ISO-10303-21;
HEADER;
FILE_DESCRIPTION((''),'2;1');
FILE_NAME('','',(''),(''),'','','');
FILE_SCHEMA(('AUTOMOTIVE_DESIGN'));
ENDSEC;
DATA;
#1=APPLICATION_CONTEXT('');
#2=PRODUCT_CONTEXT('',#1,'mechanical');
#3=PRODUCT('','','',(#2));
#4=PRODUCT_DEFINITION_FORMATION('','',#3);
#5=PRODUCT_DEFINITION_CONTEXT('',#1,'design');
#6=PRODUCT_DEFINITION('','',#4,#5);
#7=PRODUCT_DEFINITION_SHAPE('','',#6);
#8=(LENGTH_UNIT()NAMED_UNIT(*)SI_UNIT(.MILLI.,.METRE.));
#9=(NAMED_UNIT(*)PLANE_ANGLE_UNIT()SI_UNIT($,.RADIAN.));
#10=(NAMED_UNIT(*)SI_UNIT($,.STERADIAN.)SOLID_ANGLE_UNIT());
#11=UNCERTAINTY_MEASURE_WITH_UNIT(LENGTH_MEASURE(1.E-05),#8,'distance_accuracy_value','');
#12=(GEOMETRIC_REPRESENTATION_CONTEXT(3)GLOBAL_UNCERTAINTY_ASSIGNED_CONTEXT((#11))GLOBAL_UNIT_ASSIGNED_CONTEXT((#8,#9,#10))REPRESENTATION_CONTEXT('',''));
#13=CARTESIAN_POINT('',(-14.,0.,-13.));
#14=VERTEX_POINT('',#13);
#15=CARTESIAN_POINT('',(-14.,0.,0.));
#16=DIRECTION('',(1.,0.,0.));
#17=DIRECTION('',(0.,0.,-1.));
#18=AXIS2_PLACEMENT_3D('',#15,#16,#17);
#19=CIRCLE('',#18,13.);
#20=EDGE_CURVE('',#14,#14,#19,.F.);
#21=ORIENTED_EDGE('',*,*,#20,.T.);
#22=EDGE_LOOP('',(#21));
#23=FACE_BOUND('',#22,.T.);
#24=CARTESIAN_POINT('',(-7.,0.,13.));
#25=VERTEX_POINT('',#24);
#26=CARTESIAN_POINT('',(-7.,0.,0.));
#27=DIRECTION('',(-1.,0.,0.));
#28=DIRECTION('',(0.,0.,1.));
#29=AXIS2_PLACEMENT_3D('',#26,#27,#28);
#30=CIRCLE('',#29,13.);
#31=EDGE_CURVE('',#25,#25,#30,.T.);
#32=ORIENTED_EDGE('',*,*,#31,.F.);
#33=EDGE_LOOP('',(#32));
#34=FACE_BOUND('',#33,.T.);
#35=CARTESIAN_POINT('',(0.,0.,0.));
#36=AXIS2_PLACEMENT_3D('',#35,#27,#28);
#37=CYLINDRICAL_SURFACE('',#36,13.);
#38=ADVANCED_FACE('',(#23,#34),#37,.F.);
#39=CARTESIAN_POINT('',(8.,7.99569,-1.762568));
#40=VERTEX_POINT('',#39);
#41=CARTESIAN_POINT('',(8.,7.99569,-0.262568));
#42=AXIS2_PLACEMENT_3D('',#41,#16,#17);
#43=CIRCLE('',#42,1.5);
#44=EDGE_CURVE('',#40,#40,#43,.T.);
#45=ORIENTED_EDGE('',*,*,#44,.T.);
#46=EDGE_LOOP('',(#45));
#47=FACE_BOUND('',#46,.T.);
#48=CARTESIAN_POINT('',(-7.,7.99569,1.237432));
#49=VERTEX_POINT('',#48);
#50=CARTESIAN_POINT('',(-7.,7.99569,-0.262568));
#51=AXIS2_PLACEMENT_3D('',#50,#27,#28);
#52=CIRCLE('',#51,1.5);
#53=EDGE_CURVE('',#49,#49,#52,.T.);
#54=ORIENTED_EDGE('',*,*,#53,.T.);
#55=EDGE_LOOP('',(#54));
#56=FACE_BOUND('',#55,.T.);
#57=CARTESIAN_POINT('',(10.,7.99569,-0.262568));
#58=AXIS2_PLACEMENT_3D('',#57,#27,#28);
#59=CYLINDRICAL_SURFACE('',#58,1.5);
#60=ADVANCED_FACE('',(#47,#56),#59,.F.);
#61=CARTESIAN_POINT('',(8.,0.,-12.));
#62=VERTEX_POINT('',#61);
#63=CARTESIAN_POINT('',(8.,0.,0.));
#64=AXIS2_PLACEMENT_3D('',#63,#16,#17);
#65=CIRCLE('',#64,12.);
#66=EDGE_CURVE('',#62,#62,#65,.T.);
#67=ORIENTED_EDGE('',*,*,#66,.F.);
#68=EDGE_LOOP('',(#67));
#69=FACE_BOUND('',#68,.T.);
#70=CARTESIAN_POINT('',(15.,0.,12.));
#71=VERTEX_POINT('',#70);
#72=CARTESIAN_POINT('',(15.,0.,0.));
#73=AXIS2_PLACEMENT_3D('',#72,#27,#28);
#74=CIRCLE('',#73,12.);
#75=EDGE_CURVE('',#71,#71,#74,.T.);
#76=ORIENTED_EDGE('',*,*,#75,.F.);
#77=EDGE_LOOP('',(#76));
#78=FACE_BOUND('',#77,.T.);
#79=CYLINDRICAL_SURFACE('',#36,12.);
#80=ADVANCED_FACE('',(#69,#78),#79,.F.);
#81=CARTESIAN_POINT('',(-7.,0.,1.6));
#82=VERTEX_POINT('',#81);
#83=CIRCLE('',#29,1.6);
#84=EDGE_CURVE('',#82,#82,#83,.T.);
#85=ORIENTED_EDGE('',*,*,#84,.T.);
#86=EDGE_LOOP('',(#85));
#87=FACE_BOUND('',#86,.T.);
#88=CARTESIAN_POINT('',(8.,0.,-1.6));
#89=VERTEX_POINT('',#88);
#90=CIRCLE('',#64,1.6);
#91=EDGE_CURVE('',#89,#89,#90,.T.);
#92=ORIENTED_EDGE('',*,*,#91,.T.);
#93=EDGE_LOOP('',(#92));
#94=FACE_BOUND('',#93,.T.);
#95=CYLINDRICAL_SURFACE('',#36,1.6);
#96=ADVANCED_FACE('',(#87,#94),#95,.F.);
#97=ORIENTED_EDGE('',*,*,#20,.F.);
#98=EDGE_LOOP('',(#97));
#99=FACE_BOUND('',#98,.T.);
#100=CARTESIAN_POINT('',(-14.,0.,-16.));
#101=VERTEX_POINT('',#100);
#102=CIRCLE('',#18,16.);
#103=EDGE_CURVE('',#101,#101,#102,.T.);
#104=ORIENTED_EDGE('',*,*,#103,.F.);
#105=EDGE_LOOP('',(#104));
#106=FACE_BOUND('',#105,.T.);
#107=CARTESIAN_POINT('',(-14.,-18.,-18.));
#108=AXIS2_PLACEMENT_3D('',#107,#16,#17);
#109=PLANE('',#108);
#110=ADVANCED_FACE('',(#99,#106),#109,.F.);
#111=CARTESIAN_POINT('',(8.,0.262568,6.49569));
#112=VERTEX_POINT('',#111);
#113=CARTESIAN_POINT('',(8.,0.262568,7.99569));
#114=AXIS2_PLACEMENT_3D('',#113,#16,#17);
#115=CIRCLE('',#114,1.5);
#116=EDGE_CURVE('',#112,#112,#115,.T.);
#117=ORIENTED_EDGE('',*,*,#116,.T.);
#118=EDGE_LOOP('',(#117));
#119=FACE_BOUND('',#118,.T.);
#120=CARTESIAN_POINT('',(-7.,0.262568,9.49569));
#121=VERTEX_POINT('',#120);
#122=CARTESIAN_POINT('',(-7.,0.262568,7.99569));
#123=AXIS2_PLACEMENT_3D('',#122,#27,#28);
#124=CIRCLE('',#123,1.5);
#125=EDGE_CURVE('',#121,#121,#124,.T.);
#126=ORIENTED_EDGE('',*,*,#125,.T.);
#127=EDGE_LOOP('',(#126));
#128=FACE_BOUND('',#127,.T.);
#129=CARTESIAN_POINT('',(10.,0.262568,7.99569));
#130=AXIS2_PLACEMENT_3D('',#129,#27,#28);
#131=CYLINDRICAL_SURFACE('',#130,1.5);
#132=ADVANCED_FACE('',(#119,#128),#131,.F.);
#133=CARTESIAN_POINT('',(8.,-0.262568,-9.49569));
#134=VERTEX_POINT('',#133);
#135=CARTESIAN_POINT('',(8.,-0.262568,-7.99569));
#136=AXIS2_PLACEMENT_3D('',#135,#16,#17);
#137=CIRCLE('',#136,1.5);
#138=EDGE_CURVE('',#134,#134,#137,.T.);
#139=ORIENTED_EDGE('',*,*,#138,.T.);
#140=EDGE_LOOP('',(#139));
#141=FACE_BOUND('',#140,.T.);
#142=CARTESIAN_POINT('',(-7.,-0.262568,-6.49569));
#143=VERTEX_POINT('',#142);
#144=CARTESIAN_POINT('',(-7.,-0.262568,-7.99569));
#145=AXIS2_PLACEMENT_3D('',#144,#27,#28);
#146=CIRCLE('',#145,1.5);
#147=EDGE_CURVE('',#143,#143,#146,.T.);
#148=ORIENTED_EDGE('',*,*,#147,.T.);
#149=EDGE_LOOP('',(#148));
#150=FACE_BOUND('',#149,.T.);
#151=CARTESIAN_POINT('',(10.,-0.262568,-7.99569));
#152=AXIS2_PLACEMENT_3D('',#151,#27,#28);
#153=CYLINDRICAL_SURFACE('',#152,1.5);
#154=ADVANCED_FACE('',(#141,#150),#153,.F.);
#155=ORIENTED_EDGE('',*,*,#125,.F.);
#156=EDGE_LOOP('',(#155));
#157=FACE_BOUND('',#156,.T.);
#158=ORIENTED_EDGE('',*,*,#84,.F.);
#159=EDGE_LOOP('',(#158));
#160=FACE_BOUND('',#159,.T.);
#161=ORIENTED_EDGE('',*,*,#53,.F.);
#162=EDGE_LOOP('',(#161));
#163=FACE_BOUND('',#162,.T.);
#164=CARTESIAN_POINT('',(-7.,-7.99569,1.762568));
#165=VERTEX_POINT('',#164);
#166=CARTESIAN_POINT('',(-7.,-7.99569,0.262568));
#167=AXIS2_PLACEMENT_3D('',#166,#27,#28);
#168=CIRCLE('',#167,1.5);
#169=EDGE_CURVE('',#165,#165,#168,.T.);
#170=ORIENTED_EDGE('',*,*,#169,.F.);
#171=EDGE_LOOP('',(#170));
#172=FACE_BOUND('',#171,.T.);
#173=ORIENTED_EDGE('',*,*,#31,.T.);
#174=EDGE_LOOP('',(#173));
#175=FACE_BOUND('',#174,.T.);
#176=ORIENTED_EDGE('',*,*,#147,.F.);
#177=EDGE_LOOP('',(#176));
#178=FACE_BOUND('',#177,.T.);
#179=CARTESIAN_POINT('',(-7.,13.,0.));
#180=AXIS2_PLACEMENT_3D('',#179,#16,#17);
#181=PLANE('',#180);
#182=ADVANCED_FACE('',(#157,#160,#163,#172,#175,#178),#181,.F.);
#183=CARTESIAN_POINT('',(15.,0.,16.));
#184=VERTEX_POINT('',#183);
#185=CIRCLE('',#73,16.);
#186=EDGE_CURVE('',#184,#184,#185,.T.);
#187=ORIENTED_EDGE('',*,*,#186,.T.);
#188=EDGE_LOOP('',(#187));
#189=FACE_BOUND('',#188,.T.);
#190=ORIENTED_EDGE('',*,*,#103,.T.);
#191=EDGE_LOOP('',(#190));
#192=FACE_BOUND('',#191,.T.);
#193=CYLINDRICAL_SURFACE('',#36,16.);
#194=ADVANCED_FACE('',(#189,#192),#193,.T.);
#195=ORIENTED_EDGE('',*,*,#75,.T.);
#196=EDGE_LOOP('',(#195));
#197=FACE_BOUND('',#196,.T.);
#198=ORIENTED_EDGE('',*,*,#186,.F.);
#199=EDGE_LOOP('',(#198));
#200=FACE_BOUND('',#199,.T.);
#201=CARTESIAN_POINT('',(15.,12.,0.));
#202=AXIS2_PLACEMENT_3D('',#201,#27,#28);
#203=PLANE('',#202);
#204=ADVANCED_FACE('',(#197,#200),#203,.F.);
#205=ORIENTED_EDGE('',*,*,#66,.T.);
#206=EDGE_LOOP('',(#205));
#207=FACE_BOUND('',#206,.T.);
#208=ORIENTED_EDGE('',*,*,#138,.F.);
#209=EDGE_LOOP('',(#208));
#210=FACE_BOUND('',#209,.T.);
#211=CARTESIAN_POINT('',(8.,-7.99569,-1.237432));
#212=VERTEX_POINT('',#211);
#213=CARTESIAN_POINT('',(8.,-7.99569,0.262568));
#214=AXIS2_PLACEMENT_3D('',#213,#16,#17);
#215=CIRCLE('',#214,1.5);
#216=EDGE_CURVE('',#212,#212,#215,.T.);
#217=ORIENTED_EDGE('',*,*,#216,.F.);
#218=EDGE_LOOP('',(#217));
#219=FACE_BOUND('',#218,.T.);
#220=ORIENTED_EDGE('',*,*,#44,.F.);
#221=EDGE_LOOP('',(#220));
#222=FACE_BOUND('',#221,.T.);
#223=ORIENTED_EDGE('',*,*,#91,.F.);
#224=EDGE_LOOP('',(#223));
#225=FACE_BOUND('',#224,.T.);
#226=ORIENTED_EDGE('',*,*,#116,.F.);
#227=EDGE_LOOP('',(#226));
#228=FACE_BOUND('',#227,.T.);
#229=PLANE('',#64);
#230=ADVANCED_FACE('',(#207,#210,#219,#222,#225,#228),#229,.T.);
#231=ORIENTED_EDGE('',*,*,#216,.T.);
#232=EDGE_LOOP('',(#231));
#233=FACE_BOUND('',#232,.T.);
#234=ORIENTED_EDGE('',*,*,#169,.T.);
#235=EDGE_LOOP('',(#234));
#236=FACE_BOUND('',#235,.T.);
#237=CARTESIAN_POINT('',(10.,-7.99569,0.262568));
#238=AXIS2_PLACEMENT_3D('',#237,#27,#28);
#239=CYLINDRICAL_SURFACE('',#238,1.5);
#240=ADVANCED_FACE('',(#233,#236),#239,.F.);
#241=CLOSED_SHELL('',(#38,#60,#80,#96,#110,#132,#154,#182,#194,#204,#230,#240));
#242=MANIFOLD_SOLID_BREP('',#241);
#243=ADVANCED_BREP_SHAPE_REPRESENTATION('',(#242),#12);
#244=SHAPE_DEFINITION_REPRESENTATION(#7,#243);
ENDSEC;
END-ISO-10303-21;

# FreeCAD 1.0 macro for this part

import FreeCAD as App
import Part
import Sketcher
from FreeCAD import Vector


def add_polygon(sketch, points):
    """Adds a closed chain of lines whose ends are joined by coincident constraints."""
    first, n = sketch.GeometryCount, len(points)
    for a, b in zip(points, points[1:] + points[:1]):
        sketch.addGeometry(Part.LineSegment(App.Vector(*a, 0), App.Vector(*b, 0)), False)
    for i in range(n):
        sketch.addConstraint(Sketcher.Constraint("Coincident", first + i, 2, first + (i + 1) % n, 1))

doc = App.newDocument("Part")
body = doc.addObject("PartDesign::Body", "Body")

# Sketch on XY plane
sketch1 = doc.addObject("Sketcher::SketchObject", "Sketch")
body.addObject(sketch1)
sketch1.AttachmentSupport = (doc.XY_Plane, [""])
sketch1.MapMode = "FlatFace"
add_polygon(sketch1, [(-7, 1.6), (6, 1.6), (6, 12), (15, 12), (15, 16), (-14, 16), (-14, 18), (-16, 18), (-16, 13), (-7, 13)])  # lines 0-9
sketch1.addConstraint([
    Sketcher.Constraint("Horizontal", 0),
    Sketcher.Constraint("Vertical", 1),
    Sketcher.Constraint("Horizontal", 2),
    Sketcher.Constraint("Vertical", 3),
    Sketcher.Constraint("Horizontal", 4),
    Sketcher.Constraint("Vertical", 5),
    Sketcher.Constraint("Horizontal", 6),
    Sketcher.Constraint("Vertical", 7),
    Sketcher.Constraint("Horizontal", 8),
    Sketcher.Constraint("Vertical", 9),
    Sketcher.Constraint("Equal", 2, 8),
    Sketcher.Constraint("Equal", 6, 5),
    Sketcher.Constraint("DistanceX", 0, 1, 0, 2, 13.0),
    Sketcher.Constraint("DistanceX", 2, 1, 2, 2, 9.0),
    Sketcher.Constraint("DistanceX", 4, 2, 4, 1, 29.0),
    Sketcher.Constraint("DistanceY", 3, 1, 3, 2, 4.0),
    Sketcher.Constraint("DistanceY", 7, 2, 7, 1, 5.0),
    Sketcher.Constraint("DistanceY", 1, 1, 1, 2, 10.4),
    Sketcher.Constraint("DistanceX", -1, 1, 0, 2, 6.0),
    Sketcher.Constraint("DistanceY", -1, 1, 1, 2, 12.0),
])
revolution = doc.addObject("PartDesign::Revolution", "Revolution")
body.addObject(revolution)
revolution.Profile = sketch1
revolution.ReferenceAxis = (sketch1, ["H_Axis"])
revolution.Angle = 360

# Sketch on YZ plane
sketch2 = doc.addObject("Sketcher::SketchObject", "Sketch001")
body.addObject(sketch2)
sketch2.AttachmentSupport = (doc.YZ_Plane, [""])
sketch2.MapMode = "FlatFace"
sketch2.AttachmentOffset = App.Placement(Vector(0, 0, -7), App.Rotation())
sketch2.addGeometry([
    Part.Circle(Vector(-8, 0.3, 0), Vector(0, 0, 1), 1.5),
    Part.Circle(Vector(-0.3, -8, 0), Vector(0, 0, 1), 1.5),
    Part.Circle(Vector(8, -0.3, 0), Vector(0, 0, 1), 1.5),
    Part.Circle(Vector(0.3, 8, 0), Vector(0, 0, 1), 1.5),
], False)
sketch2.addConstraint([
    Sketcher.Constraint("Equal", 0, 1),
    Sketcher.Constraint("Equal", 1, 2),
    Sketcher.Constraint("Equal", 2, 3),
    Sketcher.Constraint("Symmetric", 0, 3, 2, 3, -1, 1),
    Sketcher.Constraint("Symmetric", 1, 3, 3, 3, -1, 1),
    Sketcher.Constraint("Diameter", 0, 3.0),
    Sketcher.Constraint("DistanceX", 0, 3, -1, 1, 7.99569),
    Sketcher.Constraint("DistanceY", 1, 3, -1, 1, 7.99569),
    Sketcher.Constraint("DistanceY", -1, 1, 0, 3, 0.262568),
    Sketcher.Constraint("DistanceX", 1, 3, -1, 1, 0.262568),
])
pocket1 = doc.addObject("PartDesign::Pocket", "Pocket")
body.addObject(pocket1)
pocket1.Profile = sketch2
pocket1.Length = 17
pocket1.Reversed = True

# Sketch on YZ plane
sketch3 = doc.addObject("Sketcher::SketchObject", "Sketch002")
body.addObject(sketch3)
sketch3.AttachmentSupport = (doc.YZ_Plane, [""])
sketch3.MapMode = "FlatFace"
sketch3.AttachmentOffset = App.Placement(Vector(0, 0, 6), App.Rotation())
sketch3.addGeometry([
    Part.Circle(Vector(0, 0, 0), Vector(0, 0, 1), 12),  # 0
    Part.Circle(Vector(8, -0.3, 0), Vector(0, 0, 1), 1.5),  # 1
    Part.Circle(Vector(0.3, 8, 0), Vector(0, 0, 1), 1.5),  # 2
    Part.Circle(Vector(-0.3, -8, 0), Vector(0, 0, 1), 1.5),  # 3
    Part.Circle(Vector(0, 0, 0), Vector(0, 0, 1), 1.6),  # 4
    Part.Circle(Vector(-8, 0.3, 0), Vector(0, 0, 1), 1.5),  # 5
], False)
sketch3.addConstraint([
    Sketcher.Constraint("Coincident", 0, 3, -1, 1),
    Sketcher.Constraint("Coincident", 4, 3, -1, 1),
    Sketcher.Constraint("Equal", 1, 2),
    Sketcher.Constraint("Equal", 2, 3),
    Sketcher.Constraint("Equal", 3, 5),
    Sketcher.Constraint("Symmetric", 2, 3, 3, 3, -1, 1),
    Sketcher.Constraint("Symmetric", 1, 3, 5, 3, -1, 1),
    Sketcher.Constraint("Diameter", 0, 24.0),
    Sketcher.Constraint("Diameter", 1, 3.0),
    Sketcher.Constraint("Diameter", 4, 3.2),
    Sketcher.Constraint("DistanceX", -1, 1, 1, 3, 7.99569),
    Sketcher.Constraint("DistanceY", -1, 1, 2, 3, 7.99569),
    Sketcher.Constraint("DistanceY", 1, 3, -1, 1, 0.262568),
    Sketcher.Constraint("DistanceX", -1, 1, 2, 3, 0.262568),
])
pad1 = doc.addObject("PartDesign::Pad", "Pad")
body.addObject(pad1)
pad1.Profile = sketch3
pad1.Length = 2

# Sketch on XY plane
sketch4 = doc.addObject("Sketcher::SketchObject", "Sketch003")
body.addObject(sketch4)
sketch4.AttachmentSupport = (doc.XY_Plane, [""])
sketch4.MapMode = "FlatFace"
add_polygon(sketch4, [(-16, 18), (-16, -18), (-14, -18), (-14, 18)])  # lines 0-3
sketch4.addConstraint([
    Sketcher.Constraint("Vertical", 0),
    Sketcher.Constraint("Horizontal", 1),
    Sketcher.Constraint("Vertical", 2),
    Sketcher.Constraint("Horizontal", 3),
    Sketcher.Constraint("DistanceX", 1, 1, 1, 2, 2.0),
    Sketcher.Constraint("DistanceY", 0, 2, 0, 1, 36.0),
    Sketcher.Constraint("DistanceX", 0, 2, -1, 1, 16.0),
    Sketcher.Constraint("DistanceY", 0, 2, -1, 1, 18.0),
])
pocket2 = doc.addObject("PartDesign::Pocket", "Pocket001")
body.addObject(pocket2)
pocket2.Profile = sketch4
pocket2.Type = "ThroughAll"
pocket2.Midplane = True

doc.recompute()
